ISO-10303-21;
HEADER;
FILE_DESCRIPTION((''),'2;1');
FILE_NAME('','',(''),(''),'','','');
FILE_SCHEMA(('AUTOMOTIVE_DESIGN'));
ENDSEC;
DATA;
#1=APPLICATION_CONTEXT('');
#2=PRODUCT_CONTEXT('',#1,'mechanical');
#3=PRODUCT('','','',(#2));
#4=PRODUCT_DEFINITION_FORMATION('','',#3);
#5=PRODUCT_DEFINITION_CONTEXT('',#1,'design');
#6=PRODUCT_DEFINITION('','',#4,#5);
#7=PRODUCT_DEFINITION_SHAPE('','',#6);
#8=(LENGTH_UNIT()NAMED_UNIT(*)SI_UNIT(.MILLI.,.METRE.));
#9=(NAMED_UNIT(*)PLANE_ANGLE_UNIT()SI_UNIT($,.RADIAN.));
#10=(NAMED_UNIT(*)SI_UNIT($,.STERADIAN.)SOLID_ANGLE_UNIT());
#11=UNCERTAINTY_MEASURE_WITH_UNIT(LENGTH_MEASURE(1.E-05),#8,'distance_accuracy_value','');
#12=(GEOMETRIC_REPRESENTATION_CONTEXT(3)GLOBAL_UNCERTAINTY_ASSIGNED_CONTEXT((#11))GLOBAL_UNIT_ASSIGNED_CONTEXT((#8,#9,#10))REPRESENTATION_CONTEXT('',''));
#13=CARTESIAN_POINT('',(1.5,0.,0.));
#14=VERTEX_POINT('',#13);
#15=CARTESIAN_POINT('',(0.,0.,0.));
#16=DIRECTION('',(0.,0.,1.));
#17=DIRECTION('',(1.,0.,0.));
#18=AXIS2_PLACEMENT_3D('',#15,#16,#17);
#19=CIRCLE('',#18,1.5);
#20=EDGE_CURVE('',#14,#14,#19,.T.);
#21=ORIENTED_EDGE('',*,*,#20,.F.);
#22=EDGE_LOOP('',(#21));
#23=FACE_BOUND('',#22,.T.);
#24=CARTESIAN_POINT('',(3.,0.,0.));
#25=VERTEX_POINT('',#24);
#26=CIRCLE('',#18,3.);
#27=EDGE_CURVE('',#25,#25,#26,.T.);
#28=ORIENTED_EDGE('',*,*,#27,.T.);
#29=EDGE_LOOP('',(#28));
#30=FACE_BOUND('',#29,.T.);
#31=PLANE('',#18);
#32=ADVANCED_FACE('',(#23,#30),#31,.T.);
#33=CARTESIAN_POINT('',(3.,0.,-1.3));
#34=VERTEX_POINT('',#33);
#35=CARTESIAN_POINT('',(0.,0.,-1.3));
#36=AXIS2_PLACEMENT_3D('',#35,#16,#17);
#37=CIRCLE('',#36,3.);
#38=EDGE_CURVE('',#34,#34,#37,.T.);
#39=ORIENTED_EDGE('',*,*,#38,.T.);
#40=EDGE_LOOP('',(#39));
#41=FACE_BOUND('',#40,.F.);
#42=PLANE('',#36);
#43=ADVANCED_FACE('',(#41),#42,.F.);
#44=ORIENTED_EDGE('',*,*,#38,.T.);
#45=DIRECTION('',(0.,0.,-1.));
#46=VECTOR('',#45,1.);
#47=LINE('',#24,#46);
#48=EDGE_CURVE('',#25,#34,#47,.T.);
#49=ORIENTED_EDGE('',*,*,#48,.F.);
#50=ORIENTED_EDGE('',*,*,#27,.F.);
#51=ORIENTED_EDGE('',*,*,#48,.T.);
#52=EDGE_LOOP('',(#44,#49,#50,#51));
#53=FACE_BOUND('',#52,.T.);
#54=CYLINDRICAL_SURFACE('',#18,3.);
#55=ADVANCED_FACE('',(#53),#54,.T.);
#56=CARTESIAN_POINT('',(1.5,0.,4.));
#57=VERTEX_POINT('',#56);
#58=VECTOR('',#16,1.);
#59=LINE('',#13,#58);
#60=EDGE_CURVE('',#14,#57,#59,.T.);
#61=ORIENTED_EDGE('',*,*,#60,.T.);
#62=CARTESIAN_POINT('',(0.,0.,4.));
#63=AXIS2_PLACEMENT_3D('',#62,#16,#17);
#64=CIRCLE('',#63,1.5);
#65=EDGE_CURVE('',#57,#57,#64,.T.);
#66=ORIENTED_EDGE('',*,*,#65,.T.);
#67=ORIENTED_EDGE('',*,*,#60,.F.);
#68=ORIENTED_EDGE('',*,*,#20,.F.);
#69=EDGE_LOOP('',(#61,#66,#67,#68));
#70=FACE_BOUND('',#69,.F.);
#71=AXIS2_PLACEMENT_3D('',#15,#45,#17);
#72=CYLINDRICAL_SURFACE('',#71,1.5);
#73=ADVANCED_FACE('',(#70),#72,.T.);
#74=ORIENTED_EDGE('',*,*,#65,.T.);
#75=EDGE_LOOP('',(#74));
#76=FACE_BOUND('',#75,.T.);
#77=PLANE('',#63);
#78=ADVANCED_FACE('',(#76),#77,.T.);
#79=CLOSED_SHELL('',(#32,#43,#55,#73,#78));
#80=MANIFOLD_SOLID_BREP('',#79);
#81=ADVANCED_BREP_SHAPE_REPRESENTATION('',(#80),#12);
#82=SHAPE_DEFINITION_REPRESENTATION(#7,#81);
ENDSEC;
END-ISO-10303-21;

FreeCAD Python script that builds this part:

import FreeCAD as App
import Part
import Sketcher
from FreeCAD import Vector
Q = App.Units.Quantity

doc = App.newDocument("Part")
body = doc.addObject("PartDesign::Body", "Body")

# Sketch on XY plane
sketch1 = body.newObject("Sketcher::SketchObject", "Sketch")
sketch1.AttachmentSupport = (doc.getObject("XY_Plane"), [""])
sketch1.MapMode = "FlatFace"
sketch1.addGeometry(Part.Circle(Vector(0, 0, 0), Vector(0, 0, 1), 1.5), False)
sketch1.addConstraint(Sketcher.Constraint("Coincident", 0, 3, -1, 1))
sketch1.addConstraint(Sketcher.Constraint("Diameter", 0, Q("3 mm")))
pad1 = body.newObject("PartDesign::Pad", "Pad")
pad1.Profile = sketch1
pad1.Length = 4

# Sketch on XY plane
sketch2 = body.newObject("Sketcher::SketchObject", "Sketch001")
sketch2.AttachmentSupport = (doc.getObject("XY_Plane"), [""])
sketch2.MapMode = "FlatFace"
sketch2.addGeometry(Part.Circle(Vector(0, 0, 0), Vector(0, 0, 1), 3), False)
sketch2.addConstraint(Sketcher.Constraint("Coincident", 0, 3, -1, 1))
sketch2.addConstraint(Sketcher.Constraint("Diameter", 0, Q("6 mm")))
pad2 = body.newObject("PartDesign::Pad", "Pad001")
pad2.Profile = sketch2
pad2.Length = 1.3
pad2.Reversed = True

doc.recompute()
